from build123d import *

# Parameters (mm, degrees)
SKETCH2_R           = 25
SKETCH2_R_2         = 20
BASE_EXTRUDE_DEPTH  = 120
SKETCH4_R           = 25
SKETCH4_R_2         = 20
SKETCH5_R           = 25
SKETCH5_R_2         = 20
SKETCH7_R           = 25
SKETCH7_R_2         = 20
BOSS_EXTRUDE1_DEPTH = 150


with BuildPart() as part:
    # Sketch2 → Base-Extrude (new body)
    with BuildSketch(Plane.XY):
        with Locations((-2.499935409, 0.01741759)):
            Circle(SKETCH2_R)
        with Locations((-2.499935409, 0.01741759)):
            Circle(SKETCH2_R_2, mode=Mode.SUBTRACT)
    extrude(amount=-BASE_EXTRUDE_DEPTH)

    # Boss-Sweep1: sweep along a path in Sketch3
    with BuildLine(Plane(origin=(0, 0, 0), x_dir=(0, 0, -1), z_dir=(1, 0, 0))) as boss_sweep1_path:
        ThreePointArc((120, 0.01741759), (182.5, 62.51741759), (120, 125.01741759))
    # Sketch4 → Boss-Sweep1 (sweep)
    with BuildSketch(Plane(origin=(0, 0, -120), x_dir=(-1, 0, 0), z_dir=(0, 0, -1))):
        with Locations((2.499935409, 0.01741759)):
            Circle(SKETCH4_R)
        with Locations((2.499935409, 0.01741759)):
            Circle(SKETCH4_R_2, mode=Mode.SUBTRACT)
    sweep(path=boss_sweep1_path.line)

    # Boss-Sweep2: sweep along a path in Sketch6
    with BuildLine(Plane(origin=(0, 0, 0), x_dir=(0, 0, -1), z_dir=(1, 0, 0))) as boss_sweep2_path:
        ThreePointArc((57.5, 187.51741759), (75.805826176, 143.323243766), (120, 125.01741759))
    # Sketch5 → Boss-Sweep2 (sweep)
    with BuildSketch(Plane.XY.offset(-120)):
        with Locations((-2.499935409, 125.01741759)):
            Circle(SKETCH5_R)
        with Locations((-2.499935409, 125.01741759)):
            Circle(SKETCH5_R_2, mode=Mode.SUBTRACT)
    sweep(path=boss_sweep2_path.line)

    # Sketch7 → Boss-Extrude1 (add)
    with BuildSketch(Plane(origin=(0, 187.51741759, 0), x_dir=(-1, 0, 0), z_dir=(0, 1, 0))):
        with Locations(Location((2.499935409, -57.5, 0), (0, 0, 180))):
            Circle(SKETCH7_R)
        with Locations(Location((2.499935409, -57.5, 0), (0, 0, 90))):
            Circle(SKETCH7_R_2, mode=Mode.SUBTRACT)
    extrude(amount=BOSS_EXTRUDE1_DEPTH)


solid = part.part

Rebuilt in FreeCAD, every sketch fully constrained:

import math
import FreeCAD as App
import Part
import Sketcher

V = App.Vector
Q = App.Units.Quantity

doc = App.newDocument("Part")
body = doc.addObject("PartDesign::Body", "Body")

# Sketch on XY plane
sketch1 = body.newObject("Sketcher::SketchObject", "Sketch")
sketch1.AttachmentSupport = (doc.getObject("XY_Plane"), [""])
sketch1.MapMode = "FlatFace"
sketch1.addGeometry(Part.Circle(V(-2, 0, 0), V(0, 0, 1), 25), False)
sketch1.addGeometry(Part.Circle(V(-2, 0, 0), V(0, 0, 1), 20), False)
sketch1.addConstraint(Sketcher.Constraint("Coincident", 1, 3, 0, 3))
sketch1.addConstraint(Sketcher.Constraint("Diameter", 0, Q("50 mm")))
sketch1.addConstraint(Sketcher.Constraint("Diameter", 1, Q("40 mm")))
sketch1.addConstraint(Sketcher.Constraint("DistanceX", 0, 3, -1, 1, Q("2.499935 mm")))
sketch1.addConstraint(Sketcher.Constraint("DistanceY", -1, 1, 0, 3, Q("0.017418 mm")))
pad1 = body.newObject("PartDesign::Pad", "Pad")
pad1.Profile = sketch1
pad1.Length = 120
pad1.Reversed = True

# Sketch on XY plane
sketch2 = body.newObject("Sketcher::SketchObject", "Sketch001")
sketch2.AttachmentSupport = (doc.getObject("XY_Plane"), [""])
sketch2.MapMode = "FlatFace"
sketch2.AttachmentOffset = App.Placement(V(0, 0, -120), App.Rotation())
sketch2.addGeometry(Part.Circle(V(-2, 0, 0), V(0, 0, 1), 25), False)
sketch2.addGeometry(Part.Circle(V(-2, 0, 0), V(0, 0, 1), 20), False)
sketch2.addConstraint(Sketcher.Constraint("Coincident", 1, 3, 0, 3))
sketch2.addConstraint(Sketcher.Constraint("Diameter", 0, Q("50 mm")))
sketch2.addConstraint(Sketcher.Constraint("Diameter", 1, Q("40 mm")))
sketch2.addConstraint(Sketcher.Constraint("DistanceX", 0, 3, -1, 1, Q("2.499935 mm")))
sketch2.addConstraint(Sketcher.Constraint("DistanceY", -1, 1, 0, 3, Q("0.017418 mm")))

# Sketch on YZ plane
sketch3 = body.newObject("Sketcher::SketchObject", "Sketch002")
sketch3.AttachmentSupport = (doc.getObject("YZ_Plane"), [""])
sketch3.MapMode = "FlatFace"
sketch3.addGeometry(Part.ArcOfCircle(Part.Circle(V(63, -120, 0), V(0, 0, 1), 62), math.radians(180), math.radians(360)), False)
sketch3.addConstraint(Sketcher.Constraint("Radius", 0, Q("62.5 mm")))
sketch3.addConstraint(Sketcher.Constraint("DistanceY", 0, 3, -1, 1, Q("120 mm")))
sketch3.addConstraint(Sketcher.Constraint("DistanceY", 0, 1, -1, 1, Q("120 mm")))
sketch3.addConstraint(Sketcher.Constraint("DistanceY", 0, 2, -1, 1, Q("120 mm")))
sketch3.addConstraint(Sketcher.Constraint("DistanceX", -1, 1, 0, 3, Q("62.517418 mm")))
doc.recompute()

additivepipe = body.newObject("PartDesign::AdditivePipe", "AdditivePipe")
additivepipe.Profile = sketch2
additivepipe.Spine = (sketch3, ["Edge1"])

# Sketch on XY plane
sketch4 = body.newObject("Sketcher::SketchObject", "Sketch003")
sketch4.AttachmentSupport = (doc.getObject("XY_Plane"), [""])
sketch4.MapMode = "FlatFace"
sketch4.AttachmentOffset = App.Placement(V(0, 0, -120), App.Rotation())
sketch4.addGeometry(Part.Circle(V(-2, 125, 0), V(0, 0, 1), 25), False)
sketch4.addGeometry(Part.Circle(V(-2, 125, 0), V(0, 0, 1), 20), False)
sketch4.addConstraint(Sketcher.Constraint("Coincident", 1, 3, 0, 3))
sketch4.addConstraint(Sketcher.Constraint("Diameter", 0, Q("50 mm")))
sketch4.addConstraint(Sketcher.Constraint("Diameter", 1, Q("40 mm")))
sketch4.addConstraint(Sketcher.Constraint("DistanceX", 0, 3, -1, 1, Q("2.499935 mm")))
sketch4.addConstraint(Sketcher.Constraint("DistanceY", -1, 1, 0, 3, Q("125.017418 mm")))

# Sketch on YZ plane
sketch5 = body.newObject("Sketcher::SketchObject", "Sketch004")
sketch5.AttachmentSupport = (doc.getObject("YZ_Plane"), [""])
sketch5.MapMode = "FlatFace"
sketch5.addGeometry(Part.ArcOfCircle(Part.Circle(V(188, -120, 0), V(0, 0, 1), 63), math.radians(90), math.radians(180)), False)
sketch5.addConstraint(Sketcher.Constraint("Radius", 0, Q("62.5 mm")))
sketch5.addConstraint(Sketcher.Constraint("DistanceY", 0, 3, -1, 1, Q("120 mm")))
sketch5.addConstraint(Sketcher.Constraint("DistanceY", 0, 2, -1, 1, Q("120 mm")))
sketch5.addConstraint(Sketcher.Constraint("DistanceX", 0, 2, 0, 1, Q("62.5 mm")))
sketch5.addConstraint(Sketcher.Constraint("DistanceX", -1, 1, 0, 3, Q("187.517418 mm")))
doc.recompute()

additivepipe2 = body.newObject("PartDesign::AdditivePipe", "AdditivePipe001")
additivepipe2.Profile = sketch4
additivepipe2.Spine = (sketch5, ["Edge1"])

# Sketch on XZ plane
sketch6 = body.newObject("Sketcher::SketchObject", "Sketch005")
sketch6.AttachmentSupport = (doc.getObject("XZ_Plane"), [""])
sketch6.MapMode = "FlatFace"
sketch6.AttachmentOffset = App.Placement(V(0, 0, -187.517418), App.Rotation())
sketch6.addGeometry(Part.Circle(V(-2, -58, 0), V(0, 0, 1), 25), False)
sketch6.addGeometry(Part.Circle(V(-2, -58, 0), V(0, 0, 1), 20), False)
sketch6.addConstraint(Sketcher.Constraint("Coincident", 1, 3, 0, 3))
sketch6.addConstraint(Sketcher.Constraint("Diameter", 0, Q("50 mm")))
sketch6.addConstraint(Sketcher.Constraint("Diameter", 1, Q("40 mm")))
sketch6.addConstraint(Sketcher.Constraint("DistanceY", 0, 3, -1, 1, Q("57.5 mm")))
sketch6.addConstraint(Sketcher.Constraint("DistanceX", 0, 3, -1, 1, Q("2.499935 mm")))
pad2 = body.newObject("PartDesign::Pad", "Pad001")
pad2.Profile = sketch6
pad2.Length = 150
pad2.Reversed = True

doc.recompute()
